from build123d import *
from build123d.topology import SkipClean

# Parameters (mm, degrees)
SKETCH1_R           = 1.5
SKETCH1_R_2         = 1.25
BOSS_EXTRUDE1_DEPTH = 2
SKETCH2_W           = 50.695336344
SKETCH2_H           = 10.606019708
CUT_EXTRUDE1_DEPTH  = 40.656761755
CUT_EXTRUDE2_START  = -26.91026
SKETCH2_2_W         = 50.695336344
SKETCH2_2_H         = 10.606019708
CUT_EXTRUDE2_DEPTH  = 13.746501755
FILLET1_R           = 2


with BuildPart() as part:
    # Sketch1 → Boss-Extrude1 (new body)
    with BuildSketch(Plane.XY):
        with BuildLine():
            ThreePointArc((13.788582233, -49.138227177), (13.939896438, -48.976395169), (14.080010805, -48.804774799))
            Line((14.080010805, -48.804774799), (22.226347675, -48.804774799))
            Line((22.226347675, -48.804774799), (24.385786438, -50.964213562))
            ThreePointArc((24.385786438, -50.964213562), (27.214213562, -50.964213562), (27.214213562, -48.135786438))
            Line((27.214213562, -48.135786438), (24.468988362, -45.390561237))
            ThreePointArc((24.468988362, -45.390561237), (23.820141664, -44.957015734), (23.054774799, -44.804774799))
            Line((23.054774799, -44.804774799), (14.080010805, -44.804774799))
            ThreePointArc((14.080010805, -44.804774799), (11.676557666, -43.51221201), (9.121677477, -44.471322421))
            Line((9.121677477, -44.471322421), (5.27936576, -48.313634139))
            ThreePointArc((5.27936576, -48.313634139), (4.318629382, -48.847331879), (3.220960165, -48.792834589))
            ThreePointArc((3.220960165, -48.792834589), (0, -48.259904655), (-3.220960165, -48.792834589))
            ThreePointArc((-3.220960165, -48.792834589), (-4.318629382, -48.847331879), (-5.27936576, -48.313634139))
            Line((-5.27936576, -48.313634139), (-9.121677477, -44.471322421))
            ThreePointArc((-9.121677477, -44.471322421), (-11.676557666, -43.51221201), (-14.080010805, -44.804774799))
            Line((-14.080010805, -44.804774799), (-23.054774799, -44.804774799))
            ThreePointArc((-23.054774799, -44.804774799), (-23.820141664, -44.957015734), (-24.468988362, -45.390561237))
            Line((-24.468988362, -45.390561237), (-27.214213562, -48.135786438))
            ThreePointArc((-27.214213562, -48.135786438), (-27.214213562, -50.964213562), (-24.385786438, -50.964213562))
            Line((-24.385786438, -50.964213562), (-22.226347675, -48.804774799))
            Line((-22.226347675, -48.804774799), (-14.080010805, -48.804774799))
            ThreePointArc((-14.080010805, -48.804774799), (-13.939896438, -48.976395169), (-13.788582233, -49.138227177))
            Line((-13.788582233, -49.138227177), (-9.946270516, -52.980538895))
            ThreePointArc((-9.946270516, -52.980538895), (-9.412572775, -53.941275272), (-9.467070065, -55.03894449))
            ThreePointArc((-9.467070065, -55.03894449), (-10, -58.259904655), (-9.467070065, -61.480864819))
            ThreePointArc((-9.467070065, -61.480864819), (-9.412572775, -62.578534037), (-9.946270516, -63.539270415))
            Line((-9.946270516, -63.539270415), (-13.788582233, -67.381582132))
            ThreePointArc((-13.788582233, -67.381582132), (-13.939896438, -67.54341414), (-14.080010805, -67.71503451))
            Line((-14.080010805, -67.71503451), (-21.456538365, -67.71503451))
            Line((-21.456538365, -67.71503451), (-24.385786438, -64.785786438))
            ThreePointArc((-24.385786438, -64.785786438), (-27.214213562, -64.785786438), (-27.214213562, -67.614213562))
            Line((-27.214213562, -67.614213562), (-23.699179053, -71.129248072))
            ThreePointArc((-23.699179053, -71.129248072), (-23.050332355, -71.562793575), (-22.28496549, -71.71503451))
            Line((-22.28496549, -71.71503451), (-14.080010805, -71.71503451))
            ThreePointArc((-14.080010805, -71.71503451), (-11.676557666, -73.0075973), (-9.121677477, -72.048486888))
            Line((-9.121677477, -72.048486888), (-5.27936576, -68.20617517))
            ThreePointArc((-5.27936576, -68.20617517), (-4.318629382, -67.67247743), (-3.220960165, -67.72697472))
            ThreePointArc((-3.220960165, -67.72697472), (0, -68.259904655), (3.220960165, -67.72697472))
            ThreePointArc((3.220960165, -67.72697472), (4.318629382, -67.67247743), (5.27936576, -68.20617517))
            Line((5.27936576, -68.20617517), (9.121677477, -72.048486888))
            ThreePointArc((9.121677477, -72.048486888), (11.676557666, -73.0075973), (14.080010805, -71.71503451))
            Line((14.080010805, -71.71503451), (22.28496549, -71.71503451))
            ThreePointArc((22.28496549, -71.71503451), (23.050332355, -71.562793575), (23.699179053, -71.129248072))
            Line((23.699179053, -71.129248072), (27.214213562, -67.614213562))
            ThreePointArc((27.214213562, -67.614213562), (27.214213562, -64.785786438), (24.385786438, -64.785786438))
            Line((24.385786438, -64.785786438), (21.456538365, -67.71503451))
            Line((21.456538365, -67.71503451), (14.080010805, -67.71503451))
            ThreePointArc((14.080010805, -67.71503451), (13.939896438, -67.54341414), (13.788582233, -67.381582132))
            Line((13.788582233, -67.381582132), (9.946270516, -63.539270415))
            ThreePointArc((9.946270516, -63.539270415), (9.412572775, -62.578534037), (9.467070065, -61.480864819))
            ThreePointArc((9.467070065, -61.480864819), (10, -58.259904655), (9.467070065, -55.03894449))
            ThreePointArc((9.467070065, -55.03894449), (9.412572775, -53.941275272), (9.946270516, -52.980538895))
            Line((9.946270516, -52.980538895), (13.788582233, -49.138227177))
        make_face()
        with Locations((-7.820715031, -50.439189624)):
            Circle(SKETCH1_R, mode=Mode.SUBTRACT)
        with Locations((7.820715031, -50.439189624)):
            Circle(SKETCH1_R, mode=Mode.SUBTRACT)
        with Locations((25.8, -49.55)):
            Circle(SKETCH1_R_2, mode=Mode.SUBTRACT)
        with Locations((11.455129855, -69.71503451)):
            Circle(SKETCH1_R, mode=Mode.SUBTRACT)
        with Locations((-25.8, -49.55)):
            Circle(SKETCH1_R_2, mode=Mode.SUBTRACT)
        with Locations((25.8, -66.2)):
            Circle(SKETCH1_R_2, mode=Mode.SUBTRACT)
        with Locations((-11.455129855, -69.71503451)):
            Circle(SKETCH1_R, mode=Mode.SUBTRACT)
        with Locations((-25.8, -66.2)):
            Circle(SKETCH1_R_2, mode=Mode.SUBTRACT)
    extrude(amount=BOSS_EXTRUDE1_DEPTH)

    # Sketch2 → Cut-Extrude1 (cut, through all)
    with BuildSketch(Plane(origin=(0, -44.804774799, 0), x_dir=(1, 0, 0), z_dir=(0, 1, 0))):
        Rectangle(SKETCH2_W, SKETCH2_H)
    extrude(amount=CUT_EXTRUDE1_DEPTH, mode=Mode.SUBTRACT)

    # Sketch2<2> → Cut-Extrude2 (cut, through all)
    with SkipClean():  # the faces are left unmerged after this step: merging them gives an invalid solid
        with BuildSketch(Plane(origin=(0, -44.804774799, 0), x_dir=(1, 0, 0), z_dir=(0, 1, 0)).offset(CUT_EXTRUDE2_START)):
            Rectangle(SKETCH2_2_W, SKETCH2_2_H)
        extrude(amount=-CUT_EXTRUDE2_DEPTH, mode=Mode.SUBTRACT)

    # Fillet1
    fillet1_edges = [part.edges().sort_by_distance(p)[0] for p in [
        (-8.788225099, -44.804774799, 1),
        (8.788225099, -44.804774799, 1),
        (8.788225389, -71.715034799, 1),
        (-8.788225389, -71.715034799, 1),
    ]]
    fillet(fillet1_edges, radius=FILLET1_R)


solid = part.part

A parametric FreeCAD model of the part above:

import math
import FreeCAD as App
import Part
import Sketcher

V = App.Vector
Q = App.Units.Quantity


def edges_at(feature, points):
    """Names of the edges that pass closest to the given points."""
    edges = feature.Shape.Edges
    near = lambda p: min(range(len(edges)), key=lambda i: edges[i].distToShape(Part.Vertex(*p))[0])
    return sorted({f"Edge{near(p) + 1}" for p in points})

doc = App.newDocument("Part")
body = doc.addObject("PartDesign::Body", "Body")

# Sketch on XY plane
sketch1 = body.newObject("Sketcher::SketchObject", "Sketch")
sketch1.AttachmentSupport = (doc.getObject("XY_Plane"), [""])
sketch1.MapMode = "FlatFace"
sketch1.addGeometry([
    Part.ArcOfCircle(Part.Circle(V(11.45513, -46.804775, 0), V(0, 0, 1), 3.3), math.radians(-45), math.radians(-37.305201)),  # 0
    Part.LineSegment(V(14.080011, -48.804775, 0), V(22.226348, -48.804775, 0)),  # 1
    Part.LineSegment(V(22.226348, -48.804775, 0), V(24.385786, -50.964214, 0)),  # 2
    Part.ArcOfCircle(Part.Circle(V(25.8, -49.55, 0), V(0, 0, 1), 2), math.radians(-135), math.radians(45)),  # 3
    Part.LineSegment(V(27.214214, -48.135786, 0), V(24.468988, -45.390561, 0)),  # 4
    Part.ArcOfCircle(Part.Circle(V(23.054775, -46.804775, 0), V(0, 0, 1), 2), math.radians(45), math.radians(90)),  # 5
    Part.LineSegment(V(23.054775, -44.804775, 0), V(14.080011, -44.804775, 0)),  # 6
    Part.ArcOfCircle(Part.Circle(V(11.45513, -46.804775, 0), V(0, 0, 1), 3.3), math.radians(37.305201), math.radians(135)),  # 7
    Part.LineSegment(V(9.121677, -44.471322, 0), V(5.279366, -48.313634, 0)),  # 8
    Part.ArcOfCircle(Part.Circle(V(3.865152, -46.899421, 0), V(0, 0, 1), 2), math.radians(-108.789731), math.radians(-45)),  # 9
    Part.ArcOfCircle(Part.Circle(V(0, -58.259905, 0), V(0, 0, 1), 10), math.radians(71.210269), math.radians(108.789731)),  # 10
    Part.ArcOfCircle(Part.Circle(V(-3.865152, -46.899421, 0), V(0, 0, 1), 2), math.radians(-135), math.radians(-71.210269)),  # 11
    Part.LineSegment(V(-5.279366, -48.313634, 0), V(-9.121677, -44.471322, 0)),  # 12
    Part.ArcOfCircle(Part.Circle(V(-11.45513, -46.804775, 0), V(0, 0, 1), 3.3), math.radians(45), math.radians(142.694799)),  # 13
    Part.LineSegment(V(-14.080011, -44.804775, 0), V(-23.054775, -44.804775, 0)),  # 14
    Part.ArcOfCircle(Part.Circle(V(-23.054775, -46.804775, 0), V(0, 0, 1), 2), math.radians(90), math.radians(135)),  # 15
    Part.LineSegment(V(-24.468988, -45.390561, 0), V(-27.214214, -48.135786, 0)),  # 16
    Part.ArcOfCircle(Part.Circle(V(-25.8, -49.55, 0), V(0, 0, 1), 2), math.radians(135), math.radians(315)),  # 17
    Part.LineSegment(V(-24.385786, -50.964214, 0), V(-22.226348, -48.804775, 0)),  # 18
    Part.LineSegment(V(-22.226348, -48.804775, 0), V(-14.080011, -48.804775, 0)),  # 19
    Part.ArcOfCircle(Part.Circle(V(-11.45513, -46.804775, 0), V(0, 0, 1), 3.3), math.radians(-142.694799), math.radians(-135)),  # 20
    Part.LineSegment(V(-13.788582, -49.138227, 0), V(-9.946271, -52.980539, 0)),  # 21
    Part.ArcOfCircle(Part.Circle(V(-11.360484, -54.394752, 0), V(0, 0, 1), 2), math.radians(-18.789731), math.radians(45)),  # 22
    Part.ArcOfCircle(Part.Circle(V(0, -58.259905, 0), V(0, 0, 1), 10), math.radians(161.210269), math.radians(198.789731)),  # 23
    Part.ArcOfCircle(Part.Circle(V(-11.360484, -62.125057, 0), V(0, 0, 1), 2), math.radians(-45), math.radians(18.789731)),  # 24
    Part.LineSegment(V(-9.946271, -63.53927, 0), V(-13.788582, -67.381582, 0)),  # 25
    Part.ArcOfCircle(Part.Circle(V(-11.45513, -69.715034, 0), V(0, 0, 1), 3.3), math.radians(135), math.radians(142.694799)),  # 26
    Part.LineSegment(V(-14.080011, -67.715035, 0), V(-21.456538, -67.715035, 0)),  # 27
    Part.LineSegment(V(-21.456538, -67.715035, 0), V(-24.385786, -64.785786, 0)),  # 28
    Part.ArcOfCircle(Part.Circle(V(-25.8, -66.2, 0), V(0, 0, 1), 2), math.radians(45), math.radians(225)),  # 29
    Part.LineSegment(V(-27.214214, -67.614214, 0), V(-23.699179, -71.129248, 0)),  # 30
    Part.ArcOfCircle(Part.Circle(V(-22.284965, -69.715035, 0), V(0, 0, 1), 2), math.radians(-135), math.radians(-90)),  # 31
    Part.LineSegment(V(-22.284965, -71.715035, 0), V(-14.080011, -71.715035, 0)),  # 32
    Part.ArcOfCircle(Part.Circle(V(-11.45513, -69.715035, 0), V(0, 0, 1), 3.3), math.radians(-142.694799), math.radians(-45)),  # 33
    Part.LineSegment(V(-9.121677, -72.048487, 0), V(-5.279366, -68.206175, 0)),  # 34
    Part.ArcOfCircle(Part.Circle(V(-3.865152, -69.620389, 0), V(0, 0, 1), 2), math.radians(71.210269), math.radians(135)),  # 35
    Part.ArcOfCircle(Part.Circle(V(0, -58.259905, 0), V(0, 0, 1), 10), math.radians(-108.789731), math.radians(-71.210269)),  # 36
    Part.ArcOfCircle(Part.Circle(V(3.865152, -69.620389, 0), V(0, 0, 1), 2), math.radians(45), math.radians(108.789731)),  # 37
    Part.LineSegment(V(5.279366, -68.206175, 0), V(9.121677, -72.048487, 0)),  # 38
    Part.ArcOfCircle(Part.Circle(V(11.45513, -69.715035, 0), V(0, 0, 1), 3.3), math.radians(-135), math.radians(-37.305201)),  # 39
    Part.LineSegment(V(14.080011, -71.715035, 0), V(22.284965, -71.715035, 0)),  # 40
    Part.ArcOfCircle(Part.Circle(V(22.284965, -69.715035, 0), V(0, 0, 1), 2), math.radians(-90), math.radians(-45)),  # 41
    Part.LineSegment(V(23.699179, -71.129248, 0), V(27.214214, -67.614214, 0)),  # 42
    Part.ArcOfCircle(Part.Circle(V(25.8, -66.2, 0), V(0, 0, 1), 2), math.radians(-45), math.radians(135)),  # 43
    Part.LineSegment(V(24.385786, -64.785786, 0), V(21.456538, -67.715035, 0)),  # 44
    Part.LineSegment(V(21.456538, -67.715035, 0), V(14.080011, -67.715035, 0)),  # 45
    Part.ArcOfCircle(Part.Circle(V(11.45513, -69.715034, 0), V(0, 0, 1), 3.3), math.radians(37.305201), math.radians(45)),  # 46
    Part.LineSegment(V(13.788582, -67.381582, 0), V(9.946271, -63.53927, 0)),  # 47
    Part.ArcOfCircle(Part.Circle(V(11.360484, -62.125057, 0), V(0, 0, 1), 2), math.radians(161.210269), math.radians(225)),  # 48
    Part.ArcOfCircle(Part.Circle(V(0, -58.259905, 0), V(0, 0, 1), 10), math.radians(-18.789731), math.radians(18.789731)),  # 49
    Part.ArcOfCircle(Part.Circle(V(11.360484, -54.394752, 0), V(0, 0, 1), 2), math.radians(135), math.radians(198.789731)),  # 50
    Part.LineSegment(V(9.946271, -52.980539, 0), V(13.788582, -49.138227, 0)),  # 51
    Part.Circle(V(-25.8, -66.2, 0), V(0, 0, 1), 1.25),  # 52
    Part.Circle(V(-11.45513, -69.715035, 0), V(0, 0, 1), 1.5),  # 53
    Part.Circle(V(11.45513, -69.715035, 0), V(0, 0, 1), 1.5),  # 54
    Part.Circle(V(25.8, -66.2, 0), V(0, 0, 1), 1.25),  # 55
    Part.Circle(V(-25.8, -49.55, 0), V(0, 0, 1), 1.25),  # 56
    Part.Circle(V(-7.820715, -50.43919, 0), V(0, 0, 1), 1.5),  # 57
    Part.Circle(V(7.820715, -50.43919, 0), V(0, 0, 1), 1.5),  # 58
    Part.Circle(V(25.8, -49.55, 0), V(0, 0, 1), 1.25),  # 59
], False)
sketch1.addConstraint([
    Sketcher.Constraint("Coincident", 0, 2, 1, 1),
    Sketcher.Constraint("Coincident", 1, 2, 2, 1),
    Sketcher.Constraint("Tangent", 2, 2, 3, 1),
    Sketcher.Constraint("Tangent", 3, 2, 4, 1),
    Sketcher.Constraint("Tangent", 4, 2, 5, 1),
    Sketcher.Constraint("Tangent", 5, 2, 6, 1),
    Sketcher.Constraint("Coincident", 6, 2, 7, 1),
    Sketcher.Constraint("Tangent", 7, 2, 8, 1),
    Sketcher.Constraint("Tangent", 8, 2, 9, 2),
    Sketcher.Constraint("Tangent", 9, 1, 10, 1),
    Sketcher.Constraint("Tangent", 10, 2, 11, 2),
    Sketcher.Constraint("Tangent", 11, 1, 12, 1),
    Sketcher.Constraint("Tangent", 12, 2, 13, 1),
    Sketcher.Constraint("Coincident", 13, 2, 14, 1),
    Sketcher.Constraint("Tangent", 14, 2, 15, 1),
    Sketcher.Constraint("Tangent", 15, 2, 16, 1),
    Sketcher.Constraint("Tangent", 16, 2, 17, 1),
    Sketcher.Constraint("Tangent", 17, 2, 18, 1),
    Sketcher.Constraint("Coincident", 18, 2, 19, 1),
    Sketcher.Constraint("Coincident", 19, 2, 20, 1),
    Sketcher.Constraint("Tangent", 20, 2, 21, 1),
    Sketcher.Constraint("Tangent", 21, 2, 22, 2),
    Sketcher.Constraint("Tangent", 22, 1, 23, 1),
    Sketcher.Constraint("Tangent", 23, 2, 24, 2),
    Sketcher.Constraint("Tangent", 24, 1, 25, 1),
    Sketcher.Constraint("Tangent", 25, 2, 26, 1),
    Sketcher.Constraint("Coincident", 26, 2, 27, 1),
    Sketcher.Constraint("Coincident", 27, 2, 28, 1),
    Sketcher.Constraint("Tangent", 28, 2, 29, 1),
    Sketcher.Constraint("Tangent", 29, 2, 30, 1),
    Sketcher.Constraint("Tangent", 30, 2, 31, 1),
    Sketcher.Constraint("Tangent", 31, 2, 32, 1),
    Sketcher.Constraint("Coincident", 32, 2, 33, 1),
    Sketcher.Constraint("Tangent", 33, 2, 34, 1),
    Sketcher.Constraint("Tangent", 34, 2, 35, 2),
    Sketcher.Constraint("Tangent", 35, 1, 36, 1),
    Sketcher.Constraint("Tangent", 36, 2, 37, 2),
    Sketcher.Constraint("Tangent", 37, 1, 38, 1),
    Sketcher.Constraint("Tangent", 38, 2, 39, 1),
    Sketcher.Constraint("Coincident", 39, 2, 40, 1),
    Sketcher.Constraint("Tangent", 40, 2, 41, 1),
    Sketcher.Constraint("Tangent", 41, 2, 42, 1),
    Sketcher.Constraint("Tangent", 42, 2, 43, 1),
    Sketcher.Constraint("Tangent", 43, 2, 44, 1),
    Sketcher.Constraint("Coincident", 44, 2, 45, 1),
    Sketcher.Constraint("Coincident", 45, 2, 46, 1),
    Sketcher.Constraint("Tangent", 46, 2, 47, 1),
    Sketcher.Constraint("Tangent", 47, 2, 48, 2),
    Sketcher.Constraint("Tangent", 48, 1, 49, 1),
    Sketcher.Constraint("Tangent", 49, 2, 50, 2),
    Sketcher.Constraint("Tangent", 50, 1, 51, 1),
    Sketcher.Constraint("Tangent", 51, 2, 0, 1),
    Sketcher.Constraint("Horizontal", 1),
    Sketcher.Constraint("Horizontal", 6),
    Sketcher.Constraint("Horizontal", 14),
    Sketcher.Constraint("Horizontal", 19),
    Sketcher.Constraint("Horizontal", 27),
    Sketcher.Constraint("Horizontal", 32),
    Sketcher.Constraint("Horizontal", 40),
    Sketcher.Constraint("Horizontal", 45),
    Sketcher.Constraint("Coincident", 7, 3, 0, 3),
    Sketcher.Constraint("Coincident", 20, 3, 13, 3),
    Sketcher.Constraint("Coincident", 23, 3, 10, 3),
    Sketcher.Constraint("Coincident", 33, 3, 26, 3),
    Sketcher.Constraint("Coincident", 36, 3, 10, 3),
    Sketcher.Constraint("Coincident", 46, 3, 39, 3),
    Sketcher.Constraint("Coincident", 49, 3, 10, 3),
    Sketcher.Constraint("Coincident", 52, 3, 29, 3),
    Sketcher.Constraint("Coincident", 53, 3, 26, 3),
    Sketcher.Constraint("Coincident", 54, 3, 39, 3),
    Sketcher.Constraint("Coincident", 55, 3, 43, 3),
    Sketcher.Constraint("Coincident", 56, 3, 17, 3),
    Sketcher.Constraint("Coincident", 59, 3, 3, 3),
    Sketcher.Constraint("Equal", 3, 5),
    Sketcher.Constraint("Equal", 0, 7),
    Sketcher.Constraint("Equal", 5, 9),
    Sketcher.Constraint("Equal", 9, 11),
    Sketcher.Constraint("Equal", 7, 13),
    Sketcher.Constraint("Equal", 11, 15),
    Sketcher.Constraint("Equal", 15, 17),
    Sketcher.Constraint("Equal", 13, 20),
    Sketcher.Constraint("Equal", 17, 22),
    Sketcher.Constraint("Equal", 10, 23),
    Sketcher.Constraint("Equal", 22, 24),
    Sketcher.Constraint("Equal", 20, 26),
    Sketcher.Constraint("Equal", 24, 29),
    Sketcher.Constraint("Equal", 29, 31),
    Sketcher.Constraint("Equal", 26, 33),
    Sketcher.Constraint("Equal", 31, 35),
    Sketcher.Constraint("Equal", 23, 36),
    Sketcher.Constraint("Equal", 35, 37),
    Sketcher.Constraint("Equal", 33, 39),
    Sketcher.Constraint("Equal", 37, 41),
    Sketcher.Constraint("Equal", 41, 43),
    Sketcher.Constraint("Equal", 39, 46),
    Sketcher.Constraint("Equal", 43, 48),
    Sketcher.Constraint("Equal", 36, 49),
    Sketcher.Constraint("Equal", 48, 50),
    Sketcher.Constraint("Equal", 53, 54),
    Sketcher.Constraint("Equal", 52, 55),
    Sketcher.Constraint("Equal", 55, 56),
    Sketcher.Constraint("Equal", 54, 57),
    Sketcher.Constraint("Equal", 57, 58),
    Sketcher.Constraint("Equal", 56, 59),
    Sketcher.Constraint("Symmetric", 9, 3, 11, 3, -2),
    Sketcher.Constraint("Symmetric", 0, 3, 13, 3, -2),
    Sketcher.Constraint("Symmetric", 5, 3, 15, 3, -2),
    Sketcher.Constraint("Symmetric", 3, 3, 17, 3, -2),
    Sketcher.Constraint("Symmetric", 26, 3, 39, 3, -2),
    Sketcher.Constraint("Symmetric", 31, 3, 41, 3, -2),
    Sketcher.Constraint("Symmetric", 29, 3, 43, 3, -2),
    Sketcher.Constraint("Symmetric", 57, 3, 58, 3, -2),
    Sketcher.Constraint("Symmetric", 1, 2, 18, 2, -2),
    Sketcher.Constraint("Symmetric", 27, 2, 44, 2, -2),
    Sketcher.Constraint("Parallel", 2, 4),
    Sketcher.Constraint("Perpendicular", 4, 8),
    Sketcher.Constraint("Perpendicular", 8, 12),
    Sketcher.Constraint("Perpendicular", 18, 21),
    Sketcher.Constraint("Perpendicular", 21, 25),
    Sketcher.Constraint("Perpendicular", 25, 28),
    Sketcher.Constraint("Parallel", 28, 30),
    Sketcher.Constraint("Perpendicular", 30, 34),
    Sketcher.Constraint("Perpendicular", 34, 38),
    Sketcher.Constraint("Perpendicular", 44, 47),
    Sketcher.Constraint("Perpendicular", 47, 51),
    Sketcher.Constraint("Horizontal", 0, 3, 5, 3),
    Sketcher.Constraint("Horizontal", 26, 3, 31, 3),
    Sketcher.Constraint("Vertical", 22, 3, 24, 3),
    Sketcher.Constraint("Vertical", 20, 3, 26, 3),
    Sketcher.Constraint("Vertical", 17, 3, 29, 3),
    Sketcher.Constraint("Vertical", 0, 2, 6, 2),
    Sketcher.Constraint("Vertical", 19, 2, 26, 2),
    Sketcher.Constraint("Equal", 12, 21),
    Sketcher.Constraint("Diameter", 53, Q("3 mm")),
    Sketcher.Constraint("Radius", 3, Q("2 mm")),
    Sketcher.Constraint("Radius", 10, Q("10 mm")),
    Sketcher.Constraint("Diameter", 52, Q("2.5 mm")),
    Sketcher.Constraint("Radius", 0, Q("3.3 mm")),
    Sketcher.Constraint("DistanceX", -1, 1, 3, 3, Q("25.8 mm")),
    Sketcher.Constraint("DistanceY", 29, 3, -1, 1, Q("66.2 mm")),
    Sketcher.Constraint("DistanceY", 3, 3, -1, 1, Q("49.55 mm")),
    Sketcher.Constraint("Distance", 8, Q("5.433849 mm")),
    Sketcher.Constraint("Distance", 30, Q("4.971009 mm")),
    Sketcher.Constraint("DistanceY", 57, 3, -1, 1, Q("50.43919 mm")),
    Sketcher.Constraint("DistanceX", 57, 3, -1, 1, Q("7.820715 mm")),
])
pad1 = body.newObject("PartDesign::Pad", "Pad")
pad1.Profile = sketch1
pad1.Length = 2

# Sketch on XZ plane
sketch2 = body.newObject("Sketcher::SketchObject", "Sketch001")
sketch2.AttachmentSupport = (doc.getObject("XZ_Plane"), [""])
sketch2.MapMode = "FlatFace"
sketch2.AttachmentOffset = App.Placement(V(0, 0, 44.804775), App.Rotation())
sketch2.addGeometry([
    Part.LineSegment(V(-25.347668, -5.30301, 0), V(-25.347668, 5.30301, 0)),
    Part.LineSegment(V(-25.347668, 5.30301, 0), V(25.347668, 5.30301, 0)),
    Part.LineSegment(V(25.347668, 5.30301, 0), V(25.347668, -5.30301, 0)),
    Part.LineSegment(V(25.347668, -5.30301, 0), V(-25.347668, -5.30301, 0)),
], False)
sketch2.addConstraint([
    Sketcher.Constraint("Coincident", 0, 2, 1, 1),
    Sketcher.Constraint("Coincident", 1, 2, 2, 1),
    Sketcher.Constraint("Coincident", 2, 2, 3, 1),
    Sketcher.Constraint("Coincident", 3, 2, 0, 1),
    Sketcher.Constraint("Vertical", 0),
    Sketcher.Constraint("Horizontal", 1),
    Sketcher.Constraint("Vertical", 2),
    Sketcher.Constraint("Horizontal", 3),
    Sketcher.Constraint("Symmetric", 0, 2, 2, 2, -1, 1),
    Sketcher.Constraint("DistanceY", 0, 1, 0, 2, Q("10.60602 mm")),
    Sketcher.Constraint("DistanceX", 1, 1, 1, 2, Q("50.695336 mm")),
])
pocket1 = body.newObject("PartDesign::Pocket", "Pocket")
pocket1.Profile = sketch2
pocket1.Type = "ThroughAll"

# Sketch on XZ plane
sketch3 = body.newObject("Sketcher::SketchObject", "Sketch002")
sketch3.AttachmentSupport = (doc.getObject("XZ_Plane"), [""])
sketch3.MapMode = "FlatFace"
sketch3.AttachmentOffset = App.Placement(V(0, 0, 71.715035), App.Rotation())
sketch3.addGeometry([
    Part.LineSegment(V(-25.347668, -5.30301, 0), V(-25.347668, 5.30301, 0)),
    Part.LineSegment(V(-25.347668, 5.30301, 0), V(25.347668, 5.30301, 0)),
    Part.LineSegment(V(25.347668, 5.30301, 0), V(25.347668, -5.30301, 0)),
    Part.LineSegment(V(25.347668, -5.30301, 0), V(-25.347668, -5.30301, 0)),
], False)
sketch3.addConstraint([
    Sketcher.Constraint("Coincident", 0, 2, 1, 1),
    Sketcher.Constraint("Coincident", 1, 2, 2, 1),
    Sketcher.Constraint("Coincident", 2, 2, 3, 1),
    Sketcher.Constraint("Coincident", 3, 2, 0, 1),
    Sketcher.Constraint("Vertical", 0),
    Sketcher.Constraint("Horizontal", 1),
    Sketcher.Constraint("Vertical", 2),
    Sketcher.Constraint("Horizontal", 3),
    Sketcher.Constraint("Symmetric", 0, 2, 2, 2, -1, 1),
    Sketcher.Constraint("DistanceY", 0, 1, 0, 2, Q("10.60602 mm")),
    Sketcher.Constraint("DistanceX", 1, 1, 1, 2, Q("50.695336 mm")),
])
pocket2 = body.newObject("PartDesign::Pocket", "Pocket001")
pocket2.Profile = sketch3
pocket2.Type = "ThroughAll"
pocket2.Reversed = True
doc.recompute()

fillet = body.newObject("PartDesign::Fillet", "Fillet")
fillet.Base = (pocket2, edges_at(pocket2, [
    (-8.788, -44.805, 1),
    (8.788, -44.805, 1),
    (8.788, -71.715, 1),
    (-8.788, -71.715, 1),
]))
fillet.Radius = 2

doc.recompute()
